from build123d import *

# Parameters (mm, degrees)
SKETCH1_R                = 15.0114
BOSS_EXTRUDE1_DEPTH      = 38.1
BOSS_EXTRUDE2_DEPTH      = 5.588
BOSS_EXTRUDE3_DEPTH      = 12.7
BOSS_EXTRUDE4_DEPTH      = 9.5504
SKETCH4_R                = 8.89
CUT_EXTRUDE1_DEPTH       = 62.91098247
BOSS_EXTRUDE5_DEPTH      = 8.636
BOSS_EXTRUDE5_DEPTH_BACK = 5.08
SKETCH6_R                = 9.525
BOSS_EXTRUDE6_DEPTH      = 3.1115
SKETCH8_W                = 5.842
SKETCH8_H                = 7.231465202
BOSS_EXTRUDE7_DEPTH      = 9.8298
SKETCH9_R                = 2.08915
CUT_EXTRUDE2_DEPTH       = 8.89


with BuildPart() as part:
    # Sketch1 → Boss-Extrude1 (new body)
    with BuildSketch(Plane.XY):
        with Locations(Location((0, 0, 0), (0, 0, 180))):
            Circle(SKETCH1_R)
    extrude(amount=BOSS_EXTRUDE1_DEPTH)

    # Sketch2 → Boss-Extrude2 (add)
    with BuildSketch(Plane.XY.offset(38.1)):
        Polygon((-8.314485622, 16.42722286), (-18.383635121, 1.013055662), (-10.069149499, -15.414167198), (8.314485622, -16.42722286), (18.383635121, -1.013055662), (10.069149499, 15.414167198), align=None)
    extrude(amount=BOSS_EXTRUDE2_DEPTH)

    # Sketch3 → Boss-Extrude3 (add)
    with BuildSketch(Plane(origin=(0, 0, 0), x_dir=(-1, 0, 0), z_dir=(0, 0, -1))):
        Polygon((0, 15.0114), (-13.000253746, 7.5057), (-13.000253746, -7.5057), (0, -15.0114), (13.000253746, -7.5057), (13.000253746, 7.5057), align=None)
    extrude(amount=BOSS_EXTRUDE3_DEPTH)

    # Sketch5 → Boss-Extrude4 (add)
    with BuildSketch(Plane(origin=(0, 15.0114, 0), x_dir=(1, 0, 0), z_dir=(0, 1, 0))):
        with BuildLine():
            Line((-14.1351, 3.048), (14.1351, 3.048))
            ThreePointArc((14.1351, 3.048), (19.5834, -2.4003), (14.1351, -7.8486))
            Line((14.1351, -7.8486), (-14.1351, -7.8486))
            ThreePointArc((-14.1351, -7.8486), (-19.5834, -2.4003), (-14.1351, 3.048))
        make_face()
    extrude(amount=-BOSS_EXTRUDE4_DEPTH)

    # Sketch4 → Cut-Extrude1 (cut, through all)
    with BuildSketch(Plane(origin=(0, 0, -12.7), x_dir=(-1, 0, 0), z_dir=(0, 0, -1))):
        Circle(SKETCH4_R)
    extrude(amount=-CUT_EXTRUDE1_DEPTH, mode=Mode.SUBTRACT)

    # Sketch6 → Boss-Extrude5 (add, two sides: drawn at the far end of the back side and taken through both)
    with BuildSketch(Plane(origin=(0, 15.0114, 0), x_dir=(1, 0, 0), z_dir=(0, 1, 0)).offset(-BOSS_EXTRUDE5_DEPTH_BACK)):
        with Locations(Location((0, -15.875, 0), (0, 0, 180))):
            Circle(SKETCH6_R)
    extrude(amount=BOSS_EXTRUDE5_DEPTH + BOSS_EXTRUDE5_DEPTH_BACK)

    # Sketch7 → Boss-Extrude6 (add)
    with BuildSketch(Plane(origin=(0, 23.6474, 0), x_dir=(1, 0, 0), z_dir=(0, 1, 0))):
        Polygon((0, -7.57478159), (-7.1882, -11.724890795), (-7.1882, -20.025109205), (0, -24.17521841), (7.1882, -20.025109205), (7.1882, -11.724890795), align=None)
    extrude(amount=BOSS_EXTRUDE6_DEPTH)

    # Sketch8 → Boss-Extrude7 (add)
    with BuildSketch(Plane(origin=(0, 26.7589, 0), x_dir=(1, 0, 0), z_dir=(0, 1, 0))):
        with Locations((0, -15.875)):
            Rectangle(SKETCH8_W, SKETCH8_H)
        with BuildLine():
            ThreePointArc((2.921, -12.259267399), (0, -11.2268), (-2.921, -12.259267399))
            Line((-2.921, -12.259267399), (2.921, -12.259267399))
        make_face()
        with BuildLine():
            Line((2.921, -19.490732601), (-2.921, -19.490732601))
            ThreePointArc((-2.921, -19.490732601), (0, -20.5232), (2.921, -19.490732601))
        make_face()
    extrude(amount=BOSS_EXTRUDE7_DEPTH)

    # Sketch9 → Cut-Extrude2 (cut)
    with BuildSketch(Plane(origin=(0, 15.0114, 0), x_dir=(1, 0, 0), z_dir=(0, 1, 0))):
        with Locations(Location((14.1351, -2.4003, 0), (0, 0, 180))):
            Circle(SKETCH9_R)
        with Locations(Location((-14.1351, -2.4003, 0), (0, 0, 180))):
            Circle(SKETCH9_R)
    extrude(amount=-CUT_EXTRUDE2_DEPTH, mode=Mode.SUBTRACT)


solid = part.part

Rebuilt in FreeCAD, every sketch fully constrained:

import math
import FreeCAD as App
import Part
import Sketcher
from FreeCAD import Vector
Q = App.Units.Quantity


def add_polygon(sketch, points):
    """Adds a closed chain of lines whose ends are joined by coincident constraints."""
    first, n = sketch.GeometryCount, len(points)
    for a, b in zip(points, points[1:] + points[:1]):
        sketch.addGeometry(Part.LineSegment(App.Vector(*a, 0), App.Vector(*b, 0)), False)
    for i in range(n):
        sketch.addConstraint(Sketcher.Constraint("Coincident", first + i, 2, first + (i + 1) % n, 1))

doc = App.newDocument("Part")
params = doc.addObject("Spreadsheet::Sheet", "Params")
for row, (alias, value) in enumerate([
    ("sketch1_diameter", "1.182 in"),
    ("pad1_length", "1.5 in"),
    ("pad2_length", "0.22 in"),
    ("sketch3_height", "0.591 in"),
    ("sketch3_length", "0.591 in"),
    ("pad3_length", "0.5 in"),
    ("sketch4_width", "1.113 in"),
    ("pad4_length", "0.376 in"),
    ("sketch5_diameter", "0.7 in"),
    ("sketch6_diameter", "0.75 in"),
    ("pad5_length", "0.34 in"),
    ("pad5_length2", "0.2 in"),
    ("pad6_length", "0.1225 in"),
    ("sketch8_radius", "0.183 in"),
    ("pad7_length", "0.387 in"),
    ("pocket2_length", "0.35 in"),
], start=1):
    params.set(f"A{row}", alias)
    params.set(f"B{row}", "=" + value)
    params.setAlias(f"B{row}", alias)

body = doc.addObject("PartDesign::Body", "Body")

# Sketch on XY plane
sketch1 = doc.addObject("Sketcher::SketchObject", "Sketch")
body.addObject(sketch1)
sketch1.AttachmentSupport = (doc.XY_Plane, [""])
sketch1.MapMode = "FlatFace"
sketch1.addGeometry(Part.Circle(Vector(0, 0, 0), Vector(0, 0, 1), 15), False)
sketch1.addConstraint([
    Sketcher.Constraint("Coincident", 0, 3, -1, 1),
    Sketcher.Constraint("Diameter", 0, Q("1.182 in")),
])
sketch1.setExpression("Constraints[1]", "Params.sketch1_diameter")
pad1 = doc.addObject("PartDesign::Pad", "Pad")
body.addObject(pad1)
pad1.Profile = sketch1
pad1.setExpression("Length", "Params.pad1_length")

# Sketch on XY plane
sketch2 = doc.addObject("Sketcher::SketchObject", "Sketch001")
body.addObject(sketch2)
sketch2.AttachmentSupport = (doc.XY_Plane, [""])
sketch2.MapMode = "FlatFace"
sketch2.AttachmentOffset = App.Placement(Vector(0, 0, 1.5 * 25.4), App.Rotation())
add_polygon(sketch2, [(-8, 16), (-18, 1), (-10, -15), (8, -16), (18, -1), (10, 15)])  # lines 0-5
sketch2.addConstraint([
    Sketcher.Constraint("Symmetric", 0, 2, 3, 2, -1, 1),
    Sketcher.Constraint("Symmetric", 1, 2, 4, 2, -1, 1),
    Sketcher.Constraint("Symmetric", 2, 2, 5, 2, -1, 1),
    Sketcher.Constraint("Equal", 0, 1),
    Sketcher.Constraint("Equal", 1, 2),
    Sketcher.Constraint("DistanceX", 1, 2, 4, 2, 20.138299),
    Sketcher.Constraint("DistanceX", 0, 2, 2, 2, 26.698121),
    Sketcher.Constraint("DistanceY", 2, 2, 0, 2, 17.440279),
    Sketcher.Constraint("DistanceX", 2, 2, 3, 2, 10.069149),
])
pad2 = doc.addObject("PartDesign::Pad", "Pad001")
body.addObject(pad2)
pad2.Profile = sketch2
pad2.setExpression("Length", "Params.pad2_length")

# Sketch on XY plane
sketch3 = doc.addObject("Sketcher::SketchObject", "Sketch002")
body.addObject(sketch3)
sketch3.AttachmentSupport = (doc.XY_Plane, [""])
sketch3.MapMode = "FlatFace"
add_polygon(sketch3, [(0, 15), (13, 8), (13, -8), (0, -15), (-13, -8), (-13, 8)])  # lines 0-5
sketch3.addConstraint([
    Sketcher.Constraint("Vertical", 1),
    Sketcher.Constraint("Vertical", 4),
    Sketcher.Constraint("Symmetric", 0, 2, 3, 2, -1, 1),
    Sketcher.Constraint("Symmetric", 2, 2, 5, 2, -1, 1),
    Sketcher.Constraint("PointOnObject", 2, 2, -2),
    Sketcher.Constraint("Parallel", 2, 5),
    Sketcher.Constraint("Horizontal", 1, 2, 3, 2),
    Sketcher.Constraint("Angle", 0, Q("-30 deg")),
    Sketcher.Constraint("DistanceY", 1, 2, 1, 1, Q("0.591 in")),
    Sketcher.Constraint("Distance", 0, Q("0.591 in")),
])
sketch3.setExpression("Constraints[14]", "Params.sketch3_height")
sketch3.setExpression("Constraints[15]", "Params.sketch3_length")
pad3 = doc.addObject("PartDesign::Pad", "Pad002")
body.addObject(pad3)
pad3.Profile = sketch3
pad3.setExpression("Length", "Params.pad3_length")
pad3.Reversed = True

# Sketch on XZ plane
sketch4 = doc.addObject("Sketcher::SketchObject", "Sketch003")
body.addObject(sketch4)
sketch4.AttachmentSupport = (doc.XZ_Plane, [""])
sketch4.MapMode = "FlatFace"
sketch4.AttachmentOffset = App.Placement(Vector(0, 0, -0.591 * 25.4), App.Rotation())
sketch4.addGeometry([
    Part.LineSegment(Vector(14, -3, 0), Vector(-14, -3, 0)),
    Part.ArcOfCircle(Part.Circle(Vector(-14, 2, 0), Vector(0, 0, 1), 5), math.radians(90), math.radians(270)),
    Part.LineSegment(Vector(-14, 8, 0), Vector(14, 8, 0)),
    Part.ArcOfCircle(Part.Circle(Vector(14, 2, 0), Vector(0, 0, 1), 5), math.radians(-90), math.radians(90)),
], False)
sketch4.addConstraint([
    Sketcher.Constraint("Tangent", 0, 2, 1, 2),
    Sketcher.Constraint("Tangent", 1, 1, 2, 1),
    Sketcher.Constraint("Tangent", 2, 2, 3, 2),
    Sketcher.Constraint("Tangent", 3, 1, 0, 1),
    Sketcher.Constraint("Horizontal", 0),
    Sketcher.Constraint("Horizontal", 2),
    Sketcher.Constraint("Radius", 1, Q("0.2145 in")),
    Sketcher.Constraint("DistanceX", 0, 2, 0, 1, Q("1.113 in")),
    Sketcher.Constraint("DistanceY", 0, 2, -1, 1, Q("0.12 in")),
    Sketcher.Constraint("DistanceX", 1, 3, -1, 1, Q("0.5565 in")),
])
sketch4.setExpression("Constraints[7]", "Params.sketch4_width")
pad4 = doc.addObject("PartDesign::Pad", "Pad003")
body.addObject(pad4)
pad4.Profile = sketch4
pad4.setExpression("Length", "Params.pad4_length")

# Sketch on XY plane
sketch5 = doc.addObject("Sketcher::SketchObject", "Sketch004")
body.addObject(sketch5)
sketch5.AttachmentSupport = (doc.XY_Plane, [""])
sketch5.MapMode = "FlatFace"
sketch5.AttachmentOffset = App.Placement(Vector(0, 0, -0.5 * 25.4), App.Rotation())
sketch5.addGeometry(Part.Circle(Vector(0, 0, 0), Vector(0, 0, 1), 9), False)
sketch5.addConstraint([
    Sketcher.Constraint("Coincident", 0, 3, -1, 1),
    Sketcher.Constraint("Diameter", 0, Q("0.7 in")),
])
sketch5.setExpression("Constraints[1]", "Params.sketch5_diameter")
pocket1 = doc.addObject("PartDesign::Pocket", "Pocket")
body.addObject(pocket1)
pocket1.Profile = sketch5
pocket1.Type = "ThroughAll"
pocket1.Reversed = True

# Sketch on XZ plane
sketch6 = doc.addObject("Sketcher::SketchObject", "Sketch005")
body.addObject(sketch6)
sketch6.AttachmentSupport = (doc.XZ_Plane, [""])
sketch6.MapMode = "FlatFace"
sketch6.AttachmentOffset = App.Placement(Vector(0, 0, -0.591 * 25.4), App.Rotation())
sketch6.addGeometry(Part.Circle(Vector(0, 16, 0), Vector(0, 0, 1), 10), False)
sketch6.addConstraint([
    Sketcher.Constraint("PointOnObject", 0, 3, -2),
    Sketcher.Constraint("Diameter", 0, Q("0.75 in")),
    Sketcher.Constraint("DistanceY", -1, 1, 0, 3, Q("0.625 in")),
])
sketch6.setExpression("Constraints[1]", "Params.sketch6_diameter")
pad5 = doc.addObject("PartDesign::Pad", "Pad004")
body.addObject(pad5)
pad5.Profile = sketch6
pad5.Type = "TwoLengths"
pad5.setExpression("Length", "Params.pad5_length")
pad5.setExpression("Length2", "Params.pad5_length2")
pad5.Reversed = True

# Sketch on XZ plane
sketch7 = doc.addObject("Sketcher::SketchObject", "Sketch006")
body.addObject(sketch7)
sketch7.AttachmentSupport = (doc.XZ_Plane, [""])
sketch7.MapMode = "FlatFace"
sketch7.AttachmentOffset = App.Placement(Vector(0, 0, -0.931 * 25.4), App.Rotation())
add_polygon(sketch7, [(0, 8), (-7, 12), (-7, 20), (0, 24), (7, 20), (7, 12)])  # lines 0-5
sketch7.addConstraint([
    Sketcher.Constraint("Vertical", 1),
    Sketcher.Constraint("Vertical", 4),
    Sketcher.Constraint("Symmetric", 1, 2, 3, 2, -2),
    Sketcher.Constraint("PointOnObject", 2, 2, -2),
    Sketcher.Constraint("PointOnObject", 5, 2, -2),
    Sketcher.Constraint("Parallel", 0, 3),
    Sketcher.Constraint("Parallel", 2, 5),
    Sketcher.Constraint("Angle", 0, Q("150 deg")),
    Sketcher.Constraint("DistanceX", 0, 2, -1, 1, Q("0.283 in")),
    Sketcher.Constraint("DistanceY", 1, 1, 1, 2, 8.300218),
    Sketcher.Constraint("DistanceY", -1, 1, 0, 2, 11.724891),
])
pad6 = doc.addObject("PartDesign::Pad", "Pad005")
body.addObject(pad6)
pad6.Profile = sketch7
pad6.setExpression("Length", "Params.pad6_length")
pad6.Reversed = True

# Sketch on XZ plane
sketch8 = doc.addObject("Sketcher::SketchObject", "Sketch007")
body.addObject(sketch8)
sketch8.AttachmentSupport = (doc.XZ_Plane, [""])
sketch8.MapMode = "FlatFace"
sketch8.AttachmentOffset = App.Placement(Vector(0, 0, -1.0535 * 25.4), App.Rotation())
sketch8.addGeometry([
    Part.LineSegment(Vector(-2.9, 12.3, 0), Vector(-2.9, 19.5, 0)),
    Part.ArcOfCircle(Part.Circle(Vector(0, 15.9, 0), Vector(0, 0, 1), 4.6), math.radians(51), math.radians(129)),
    Part.LineSegment(Vector(2.9, 19.5, 0), Vector(2.9, 12.3, 0)),
    Part.ArcOfCircle(Part.Circle(Vector(0, 15.9, 0), Vector(0, 0, 1), 4.6), math.radians(-129), math.radians(-51)),
], False)
sketch8.addConstraint([
    Sketcher.Constraint("Coincident", 0, 2, 1, 2),
    Sketcher.Constraint("Coincident", 1, 1, 2, 1),
    Sketcher.Constraint("Coincident", 2, 2, 3, 2),
    Sketcher.Constraint("Coincident", 3, 1, 0, 1),
    Sketcher.Constraint("Vertical", 0),
    Sketcher.Constraint("Vertical", 2),
    Sketcher.Constraint("Coincident", 3, 3, 1, 3),
    Sketcher.Constraint("Equal", 1, 3),
    Sketcher.Constraint("Symmetric", 0, 2, 1, 1, -2),
    Sketcher.Constraint("Radius", 1, Q("0.183 in")),
    Sketcher.Constraint("DistanceX", 0, 2, 1, 1, Q("0.23 in")),
    Sketcher.Constraint("DistanceY", -1, 1, 1, 3, Q("0.625 in")),
])
sketch8.setExpression("Constraints[9]", "Params.sketch8_radius")
pad7 = doc.addObject("PartDesign::Pad", "Pad006")
body.addObject(pad7)
pad7.Profile = sketch8
pad7.setExpression("Length", "Params.pad7_length")
pad7.Reversed = True

# Sketch on XZ plane
sketch9 = doc.addObject("Sketcher::SketchObject", "Sketch008")
body.addObject(sketch9)
sketch9.AttachmentSupport = (doc.XZ_Plane, [""])
sketch9.MapMode = "FlatFace"
sketch9.AttachmentOffset = App.Placement(Vector(0, 0, -0.591 * 25.4), App.Rotation())
sketch9.addGeometry([
    Part.Circle(Vector(14.1, 2.4, 0), Vector(0, 0, 1), 2.1),
    Part.Circle(Vector(-14.1, 2.4, 0), Vector(0, 0, 1), 2.1),
], False)
sketch9.addConstraint([
    Sketcher.Constraint("Equal", 0, 1),
    Sketcher.Constraint("Symmetric", 0, 3, 1, 3, -2),
    Sketcher.Constraint("Diameter", 0, Q("0.1645 in")),
    Sketcher.Constraint("DistanceX", 1, 3, 0, 3, Q("1.113 in")),
    Sketcher.Constraint("DistanceY", -1, 1, 0, 3, Q("0.0945 in")),
])
pocket2 = doc.addObject("PartDesign::Pocket", "Pocket001")
body.addObject(pocket2)
pocket2.Profile = sketch9
pocket2.setExpression("Length", "Params.pocket2_length")
pocket2.Reversed = True

doc.recompute()
